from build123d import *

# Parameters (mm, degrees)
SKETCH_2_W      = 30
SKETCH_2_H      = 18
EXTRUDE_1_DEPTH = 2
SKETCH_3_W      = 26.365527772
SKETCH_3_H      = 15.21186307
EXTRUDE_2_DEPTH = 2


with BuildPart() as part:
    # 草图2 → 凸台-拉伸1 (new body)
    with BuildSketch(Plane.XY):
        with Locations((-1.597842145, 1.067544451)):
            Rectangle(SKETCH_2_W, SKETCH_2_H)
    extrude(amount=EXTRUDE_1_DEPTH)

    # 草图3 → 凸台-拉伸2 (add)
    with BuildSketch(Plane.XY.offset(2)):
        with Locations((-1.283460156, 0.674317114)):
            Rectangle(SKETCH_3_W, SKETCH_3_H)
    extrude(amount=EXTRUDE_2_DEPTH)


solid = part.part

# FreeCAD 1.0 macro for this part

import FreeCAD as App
import Part
import Sketcher


def add_polygon(sketch, points):
    """Adds a closed chain of lines whose ends are joined by coincident constraints."""
    first, n = sketch.GeometryCount, len(points)
    for a, b in zip(points, points[1:] + points[:1]):
        sketch.addGeometry(Part.LineSegment(App.Vector(*a, 0), App.Vector(*b, 0)), False)
    for i in range(n):
        sketch.addConstraint(Sketcher.Constraint("Coincident", first + i, 2, first + (i + 1) % n, 1))

doc = App.newDocument("Part")
params = doc.addObject("Spreadsheet::Sheet", "Params")
for row, (alias, value) in enumerate([
    ("sketch1_width", "30 mm"),
    ("sketch1_height", "18 mm"),
    ("pad1_length", "2 mm"),
    ("pad2_length", "2 mm"),
], start=1):
    params.set(f"A{row}", alias)
    params.set(f"B{row}", "=" + value)
    params.setAlias(f"B{row}", alias)

body = doc.addObject("PartDesign::Body", "Body")

sketch1 = body.newObject("Sketcher::SketchObject", "Sketch")
sketch1.AttachmentSupport = (doc.getObject("XY_Plane"), [""])
sketch1.MapMode = "FlatFace"
add_polygon(sketch1, [(-17, 10), (-17, -8), (13, -8), (13, 10)])
sketch1.addConstraint(Sketcher.Constraint("Vertical", 0))
sketch1.addConstraint(Sketcher.Constraint("Horizontal", 1))
sketch1.addConstraint(Sketcher.Constraint("Vertical", 2))
sketch1.addConstraint(Sketcher.Constraint("Horizontal", 3))
sketch1.addConstraint(Sketcher.Constraint("DistanceX", 1, 1, 1, 2, 30.0))
sketch1.addConstraint(Sketcher.Constraint("DistanceY", 0, 2, 0, 1, 18.0))
sketch1.addConstraint(Sketcher.Constraint("DistanceX", 0, 2, -1, 1, 16.597842))
sketch1.addConstraint(Sketcher.Constraint("DistanceY", 0, 2, -1, 1, 7.932456))
sketch1.setExpression("Constraints[8]", "Params.sketch1_width")
sketch1.setExpression("Constraints[9]", "Params.sketch1_height")
pad1 = body.newObject("PartDesign::Pad", "Pad")
pad1.Profile = sketch1
pad1.setExpression("Length", "Params.pad1_length")

sketch2 = body.newObject("Sketcher::SketchObject", "Sketch001")
sketch2.AttachmentSupport = (doc.getObject("XY_Plane"), [""])
sketch2.MapMode = "FlatFace"
sketch2.AttachmentOffset = App.Placement(App.Vector(0, 0, 2), App.Rotation())
add_polygon(sketch2, [(-14, 8), (-14, -7), (12, -7), (12, 8)])
sketch2.addConstraint(Sketcher.Constraint("Vertical", 0))
sketch2.addConstraint(Sketcher.Constraint("Horizontal", 1))
sketch2.addConstraint(Sketcher.Constraint("Vertical", 2))
sketch2.addConstraint(Sketcher.Constraint("Horizontal", 3))
sketch2.addConstraint(Sketcher.Constraint("DistanceX", 1, 1, 1, 2, 26.365528))
sketch2.addConstraint(Sketcher.Constraint("DistanceY", 0, 2, 0, 1, 15.211863))
sketch2.addConstraint(Sketcher.Constraint("DistanceY", -1, 1, 2, 2, 8.280249))
sketch2.addConstraint(Sketcher.Constraint("DistanceX", 0, 2, -1, 1, 14.466224))
pad2 = body.newObject("PartDesign::Pad", "Pad001")
pad2.Profile = sketch2
pad2.setExpression("Length", "Params.pad2_length")

doc.recompute()
